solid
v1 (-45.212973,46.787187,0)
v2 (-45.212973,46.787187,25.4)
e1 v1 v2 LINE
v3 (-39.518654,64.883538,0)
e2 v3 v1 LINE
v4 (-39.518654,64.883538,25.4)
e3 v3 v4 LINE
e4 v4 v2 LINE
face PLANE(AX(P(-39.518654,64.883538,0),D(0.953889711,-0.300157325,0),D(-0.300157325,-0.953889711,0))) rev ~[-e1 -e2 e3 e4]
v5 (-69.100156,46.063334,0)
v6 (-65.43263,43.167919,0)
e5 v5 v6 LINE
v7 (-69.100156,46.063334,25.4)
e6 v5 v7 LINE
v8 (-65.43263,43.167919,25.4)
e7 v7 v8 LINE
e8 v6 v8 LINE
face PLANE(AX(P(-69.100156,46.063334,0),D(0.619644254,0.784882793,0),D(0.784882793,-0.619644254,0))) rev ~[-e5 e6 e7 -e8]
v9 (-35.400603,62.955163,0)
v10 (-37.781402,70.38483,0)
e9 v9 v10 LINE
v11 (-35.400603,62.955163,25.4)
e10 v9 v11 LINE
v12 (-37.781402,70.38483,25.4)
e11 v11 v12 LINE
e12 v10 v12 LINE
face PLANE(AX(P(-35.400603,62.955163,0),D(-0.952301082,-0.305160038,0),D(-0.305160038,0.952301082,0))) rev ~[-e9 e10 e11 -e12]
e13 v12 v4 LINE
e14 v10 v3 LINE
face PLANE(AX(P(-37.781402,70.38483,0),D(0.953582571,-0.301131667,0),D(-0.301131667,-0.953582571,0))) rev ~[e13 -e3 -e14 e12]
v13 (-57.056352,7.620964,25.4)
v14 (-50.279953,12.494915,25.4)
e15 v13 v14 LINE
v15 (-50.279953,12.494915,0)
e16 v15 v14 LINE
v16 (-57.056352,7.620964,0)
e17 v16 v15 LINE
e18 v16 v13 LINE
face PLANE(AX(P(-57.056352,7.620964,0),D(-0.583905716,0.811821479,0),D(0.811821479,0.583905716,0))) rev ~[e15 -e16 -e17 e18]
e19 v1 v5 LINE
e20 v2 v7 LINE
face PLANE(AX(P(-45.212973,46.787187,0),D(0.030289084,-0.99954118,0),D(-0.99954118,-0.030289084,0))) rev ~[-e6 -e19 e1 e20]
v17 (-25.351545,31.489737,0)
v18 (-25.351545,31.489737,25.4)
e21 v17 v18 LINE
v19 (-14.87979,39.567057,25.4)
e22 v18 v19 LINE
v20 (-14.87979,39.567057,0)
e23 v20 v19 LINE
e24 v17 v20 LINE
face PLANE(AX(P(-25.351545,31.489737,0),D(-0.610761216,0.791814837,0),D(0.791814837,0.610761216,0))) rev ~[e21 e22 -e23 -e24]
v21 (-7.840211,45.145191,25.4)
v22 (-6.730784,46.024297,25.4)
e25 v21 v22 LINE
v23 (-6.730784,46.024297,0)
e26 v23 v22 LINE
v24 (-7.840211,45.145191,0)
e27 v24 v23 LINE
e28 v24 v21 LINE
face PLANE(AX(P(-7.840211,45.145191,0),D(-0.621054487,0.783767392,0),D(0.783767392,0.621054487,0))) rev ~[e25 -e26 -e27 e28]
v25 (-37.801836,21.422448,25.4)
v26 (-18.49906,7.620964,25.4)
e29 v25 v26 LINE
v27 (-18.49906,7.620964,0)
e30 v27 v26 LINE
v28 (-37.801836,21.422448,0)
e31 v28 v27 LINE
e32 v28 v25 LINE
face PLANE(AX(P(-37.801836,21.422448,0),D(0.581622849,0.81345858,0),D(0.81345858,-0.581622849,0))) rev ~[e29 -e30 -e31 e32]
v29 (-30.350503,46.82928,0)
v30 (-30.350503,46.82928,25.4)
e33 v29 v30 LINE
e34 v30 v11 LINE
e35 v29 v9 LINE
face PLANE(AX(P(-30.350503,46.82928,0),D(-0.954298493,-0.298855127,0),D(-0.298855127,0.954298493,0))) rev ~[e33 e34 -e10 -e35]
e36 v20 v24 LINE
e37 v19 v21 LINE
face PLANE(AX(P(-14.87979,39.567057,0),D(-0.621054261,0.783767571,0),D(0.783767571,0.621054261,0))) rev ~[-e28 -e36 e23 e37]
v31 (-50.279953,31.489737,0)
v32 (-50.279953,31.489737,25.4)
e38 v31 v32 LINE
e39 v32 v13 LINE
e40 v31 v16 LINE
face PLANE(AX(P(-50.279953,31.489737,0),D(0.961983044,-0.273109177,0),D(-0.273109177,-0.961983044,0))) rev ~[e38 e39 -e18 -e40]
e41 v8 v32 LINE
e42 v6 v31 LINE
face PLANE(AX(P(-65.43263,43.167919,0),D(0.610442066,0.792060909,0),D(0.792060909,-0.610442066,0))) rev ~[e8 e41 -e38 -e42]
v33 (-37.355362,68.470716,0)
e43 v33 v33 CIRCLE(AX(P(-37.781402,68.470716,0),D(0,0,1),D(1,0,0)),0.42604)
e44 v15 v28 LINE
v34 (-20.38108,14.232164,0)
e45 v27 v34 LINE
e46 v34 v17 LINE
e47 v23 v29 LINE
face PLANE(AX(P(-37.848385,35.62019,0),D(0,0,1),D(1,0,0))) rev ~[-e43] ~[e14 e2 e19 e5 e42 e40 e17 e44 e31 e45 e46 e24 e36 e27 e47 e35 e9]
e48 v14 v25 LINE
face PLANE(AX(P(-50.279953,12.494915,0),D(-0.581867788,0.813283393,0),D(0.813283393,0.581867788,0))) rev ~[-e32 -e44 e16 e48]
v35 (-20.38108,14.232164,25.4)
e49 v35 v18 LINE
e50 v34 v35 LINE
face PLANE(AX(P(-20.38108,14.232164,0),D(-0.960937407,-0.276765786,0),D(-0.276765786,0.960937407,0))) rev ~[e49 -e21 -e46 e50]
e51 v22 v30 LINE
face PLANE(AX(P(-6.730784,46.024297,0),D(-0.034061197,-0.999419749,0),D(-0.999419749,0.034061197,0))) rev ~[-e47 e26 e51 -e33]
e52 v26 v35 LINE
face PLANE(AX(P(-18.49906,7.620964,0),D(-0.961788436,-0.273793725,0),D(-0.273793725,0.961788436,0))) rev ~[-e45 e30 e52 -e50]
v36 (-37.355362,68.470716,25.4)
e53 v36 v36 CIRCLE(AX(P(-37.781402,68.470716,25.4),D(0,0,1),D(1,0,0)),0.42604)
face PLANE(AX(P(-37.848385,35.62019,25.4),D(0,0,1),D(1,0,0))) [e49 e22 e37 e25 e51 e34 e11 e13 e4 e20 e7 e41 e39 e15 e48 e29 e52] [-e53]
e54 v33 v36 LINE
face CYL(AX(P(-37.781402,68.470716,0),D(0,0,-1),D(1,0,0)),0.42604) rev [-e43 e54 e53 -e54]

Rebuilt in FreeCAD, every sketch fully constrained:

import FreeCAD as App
import Part
import Sketcher
from FreeCAD import Vector
Q = App.Units.Quantity

doc = App.newDocument("Part")
body = doc.addObject("PartDesign::Body", "Body")

sketch1 = body.newObject("Sketcher::SketchObject", "Sketch")
sketch1.AttachmentSupport = (doc.getObject("XY_Plane"), [""])
sketch1.MapMode = "FlatFace"
sketch1.addGeometry(Part.LineSegment(Vector(-6.730784, 46.024297, 0), Vector(-30.350503, 46.82928, 0)), False)
sketch1.addGeometry(Part.LineSegment(Vector(-30.350503, 46.82928, 0), Vector(-35.400603, 62.955163, 0)), False)
sketch1.addGeometry(Part.LineSegment(Vector(-35.400603, 62.955163, 0), Vector(-37.781402, 70.38483, 0)), False)
sketch1.addGeometry(Part.LineSegment(Vector(-37.781402, 70.38483, 0), Vector(-39.518654, 64.883538, 0)), False)
sketch1.addGeometry(Part.LineSegment(Vector(-39.518654, 64.883538, 0), Vector(-45.212973, 46.787187, 0)), False)
sketch1.addGeometry(Part.LineSegment(Vector(-45.212973, 46.787187, 0), Vector(-69.100156, 46.063334, 0)), False)
sketch1.addGeometry(Part.LineSegment(Vector(-69.100156, 46.063334, 0), Vector(-65.43263, 43.167919, 0)), False)
sketch1.addGeometry(Part.LineSegment(Vector(-65.43263, 43.167919, 0), Vector(-50.279953, 31.489737, 0)), False)
sketch1.addGeometry(Part.LineSegment(Vector(-50.279953, 31.489737, 0), Vector(-57.056352, 7.620964, 0)), False)
sketch1.addGeometry(Part.LineSegment(Vector(-57.056352, 7.620964, 0), Vector(-50.279953, 12.494915, 0)), False)
sketch1.addGeometry(Part.LineSegment(Vector(-50.279953, 12.494915, 0), Vector(-37.801836, 21.422448, 0)), False)
sketch1.addGeometry(Part.LineSegment(Vector(-37.801836, 21.422448, 0), Vector(-18.49906, 7.620964, 0)), False)
sketch1.addGeometry(Part.LineSegment(Vector(-18.49906, 7.620964, 0), Vector(-20.38108, 14.232164, 0)), False)
sketch1.addGeometry(Part.LineSegment(Vector(-20.38108, 14.232164, 0), Vector(-25.351545, 31.489737, 0)), False)
sketch1.addGeometry(Part.LineSegment(Vector(-25.351545, 31.489737, 0), Vector(-14.87979, 39.567057, 0)), False)
sketch1.addGeometry(Part.LineSegment(Vector(-14.87979, 39.567057, 0), Vector(-7.840211, 45.145191, 0)), False)
sketch1.addGeometry(Part.LineSegment(Vector(-7.840211, 45.145191, 0), Vector(-6.730784, 46.024297, 0)), False)
sketch1.addGeometry(Part.Circle(Vector(-37.781402, 68.470716, 0), Vector(0, 0, 1), 0.42604), False)
sketch1.addConstraint(Sketcher.Constraint("Coincident", 0, 2, 1, 1))
sketch1.addConstraint(Sketcher.Constraint("Coincident", 1, 2, 2, 1))
sketch1.addConstraint(Sketcher.Constraint("Coincident", 2, 2, 3, 1))
sketch1.addConstraint(Sketcher.Constraint("Coincident", 3, 2, 4, 1))
sketch1.addConstraint(Sketcher.Constraint("Coincident", 4, 2, 5, 1))
sketch1.addConstraint(Sketcher.Constraint("Coincident", 5, 2, 6, 1))
sketch1.addConstraint(Sketcher.Constraint("Coincident", 6, 2, 7, 1))
sketch1.addConstraint(Sketcher.Constraint("Coincident", 7, 2, 8, 1))
sketch1.addConstraint(Sketcher.Constraint("Coincident", 8, 2, 9, 1))
sketch1.addConstraint(Sketcher.Constraint("Coincident", 9, 2, 10, 1))
sketch1.addConstraint(Sketcher.Constraint("Coincident", 10, 2, 11, 1))
sketch1.addConstraint(Sketcher.Constraint("Coincident", 11, 2, 12, 1))
sketch1.addConstraint(Sketcher.Constraint("Coincident", 12, 2, 13, 1))
sketch1.addConstraint(Sketcher.Constraint("Coincident", 13, 2, 14, 1))
sketch1.addConstraint(Sketcher.Constraint("Coincident", 14, 2, 15, 1))
sketch1.addConstraint(Sketcher.Constraint("Coincident", 15, 2, 16, 1))
sketch1.addConstraint(Sketcher.Constraint("Coincident", 16, 2, 0, 1))
sketch1.addConstraint(Sketcher.Constraint("Parallel", 15, 16))
sketch1.addConstraint(Sketcher.Constraint("Horizontal", 8, 2, 11, 2))
sketch1.addConstraint(Sketcher.Constraint("Horizontal", 7, 2, 13, 2))
sketch1.addConstraint(Sketcher.Constraint("Vertical", 17, 3, 2, 2))
sketch1.addConstraint(Sketcher.Constraint("Vertical", 7, 2, 9, 2))
sketch1.addConstraint(Sketcher.Constraint("Diameter", 17, 0.85208))
sketch1.addConstraint(Sketcher.Constraint("DistanceX", 17, 3, 0, 2, 7.430899))
sketch1.addConstraint(Sketcher.Constraint("DistanceX", 17, 3, 1, 2, 2.380799))
sketch1.addConstraint(Sketcher.Constraint("DistanceX", 8, 2, 7, 2, 6.776399))
sketch1.addConstraint(Sketcher.Constraint("DistanceY", 11, 2, 12, 2, 6.6112))
sketch1.addConstraint(Sketcher.Constraint("Distance", 8, 24.812052))
sketch1.addConstraint(Sketcher.Constraint("Distance", 10, 15.342889))
sketch1.addConstraint(Sketcher.Constraint("Distance", 12, 6.873861))
sketch1.addConstraint(Sketcher.Constraint("DistanceY", -1, 1, 0, 2, 46.82928))
sketch1.addConstraint(Sketcher.Constraint("DistanceY", -1, 1, 2, 2, 70.38483))
sketch1.addConstraint(Sketcher.Constraint("DistanceY", -1, 1, 3, 2, 64.883538))
sketch1.addConstraint(Sketcher.Constraint("DistanceX", 6, 2, -1, 1, 65.43263))
sketch1.addConstraint(Sketcher.Constraint("DistanceY", -1, 1, 6, 2, 43.167919))
sketch1.addConstraint(Sketcher.Constraint("DistanceX", 8, 2, -1, 1, 57.056352))
sketch1.addConstraint(Sketcher.Constraint("DistanceX", 11, 2, -1, 1, 18.49906))
sketch1.addConstraint(Sketcher.Constraint("DistanceX", 14, 2, -1, 1, 14.87979))
sketch1.addConstraint(Sketcher.Constraint("DistanceX", 15, 2, -1, 1, 7.840211))
sketch1.addConstraint(Sketcher.Constraint("DistanceY", -1, 1, 15, 2, 45.145191))
sketch1.addConstraint(Sketcher.Constraint("DistanceX", 3, 2, 17, 3, 1.737252))
sketch1.addConstraint(Sketcher.Constraint("DistanceX", 4, 2, 0, 2, 14.86247))
sketch1.addConstraint(Sketcher.Constraint("DistanceY", 4, 2, 3, 2, 18.096351))
sketch1.addConstraint(Sketcher.Constraint("DistanceY", 4, 2, 17, 3, 21.683529))
sketch1.addConstraint(Sketcher.Constraint("DistanceY", 5, 2, 1, 2, 16.891829))
sketch1.addConstraint(Sketcher.Constraint("DistanceY", 5, 2, 17, 3, 22.407382))
sketch1.addConstraint(Sketcher.Constraint("DistanceX", 7, 2, 4, 2, 5.06698))
sketch1.addConstraint(Sketcher.Constraint("DistanceY", 7, 2, 4, 2, 15.29745))
sketch1.addConstraint(Sketcher.Constraint("DistanceY", 8, 2, 9, 2, 4.873951))
sketch1.addConstraint(Sketcher.Constraint("DistanceY", 10, 2, 7, 2, 10.067289))
sketch1.addConstraint(Sketcher.Constraint("DistanceX", 10, 2, 13, 2, 12.450291))
sketch1.addConstraint(Sketcher.Constraint("DistanceY", 13, 2, 14, 2, 8.07732))
sketch1.addConstraint(Sketcher.Constraint("DistanceY", 14, 2, 16, 2, 6.45724))
sketch1.addConstraint(Sketcher.Constraint("Distance", 5, 23.898148))
pad1 = body.newObject("PartDesign::Pad", "Pad")
pad1.Profile = sketch1
pad1.Length = Q("1 in")

doc.recompute()
